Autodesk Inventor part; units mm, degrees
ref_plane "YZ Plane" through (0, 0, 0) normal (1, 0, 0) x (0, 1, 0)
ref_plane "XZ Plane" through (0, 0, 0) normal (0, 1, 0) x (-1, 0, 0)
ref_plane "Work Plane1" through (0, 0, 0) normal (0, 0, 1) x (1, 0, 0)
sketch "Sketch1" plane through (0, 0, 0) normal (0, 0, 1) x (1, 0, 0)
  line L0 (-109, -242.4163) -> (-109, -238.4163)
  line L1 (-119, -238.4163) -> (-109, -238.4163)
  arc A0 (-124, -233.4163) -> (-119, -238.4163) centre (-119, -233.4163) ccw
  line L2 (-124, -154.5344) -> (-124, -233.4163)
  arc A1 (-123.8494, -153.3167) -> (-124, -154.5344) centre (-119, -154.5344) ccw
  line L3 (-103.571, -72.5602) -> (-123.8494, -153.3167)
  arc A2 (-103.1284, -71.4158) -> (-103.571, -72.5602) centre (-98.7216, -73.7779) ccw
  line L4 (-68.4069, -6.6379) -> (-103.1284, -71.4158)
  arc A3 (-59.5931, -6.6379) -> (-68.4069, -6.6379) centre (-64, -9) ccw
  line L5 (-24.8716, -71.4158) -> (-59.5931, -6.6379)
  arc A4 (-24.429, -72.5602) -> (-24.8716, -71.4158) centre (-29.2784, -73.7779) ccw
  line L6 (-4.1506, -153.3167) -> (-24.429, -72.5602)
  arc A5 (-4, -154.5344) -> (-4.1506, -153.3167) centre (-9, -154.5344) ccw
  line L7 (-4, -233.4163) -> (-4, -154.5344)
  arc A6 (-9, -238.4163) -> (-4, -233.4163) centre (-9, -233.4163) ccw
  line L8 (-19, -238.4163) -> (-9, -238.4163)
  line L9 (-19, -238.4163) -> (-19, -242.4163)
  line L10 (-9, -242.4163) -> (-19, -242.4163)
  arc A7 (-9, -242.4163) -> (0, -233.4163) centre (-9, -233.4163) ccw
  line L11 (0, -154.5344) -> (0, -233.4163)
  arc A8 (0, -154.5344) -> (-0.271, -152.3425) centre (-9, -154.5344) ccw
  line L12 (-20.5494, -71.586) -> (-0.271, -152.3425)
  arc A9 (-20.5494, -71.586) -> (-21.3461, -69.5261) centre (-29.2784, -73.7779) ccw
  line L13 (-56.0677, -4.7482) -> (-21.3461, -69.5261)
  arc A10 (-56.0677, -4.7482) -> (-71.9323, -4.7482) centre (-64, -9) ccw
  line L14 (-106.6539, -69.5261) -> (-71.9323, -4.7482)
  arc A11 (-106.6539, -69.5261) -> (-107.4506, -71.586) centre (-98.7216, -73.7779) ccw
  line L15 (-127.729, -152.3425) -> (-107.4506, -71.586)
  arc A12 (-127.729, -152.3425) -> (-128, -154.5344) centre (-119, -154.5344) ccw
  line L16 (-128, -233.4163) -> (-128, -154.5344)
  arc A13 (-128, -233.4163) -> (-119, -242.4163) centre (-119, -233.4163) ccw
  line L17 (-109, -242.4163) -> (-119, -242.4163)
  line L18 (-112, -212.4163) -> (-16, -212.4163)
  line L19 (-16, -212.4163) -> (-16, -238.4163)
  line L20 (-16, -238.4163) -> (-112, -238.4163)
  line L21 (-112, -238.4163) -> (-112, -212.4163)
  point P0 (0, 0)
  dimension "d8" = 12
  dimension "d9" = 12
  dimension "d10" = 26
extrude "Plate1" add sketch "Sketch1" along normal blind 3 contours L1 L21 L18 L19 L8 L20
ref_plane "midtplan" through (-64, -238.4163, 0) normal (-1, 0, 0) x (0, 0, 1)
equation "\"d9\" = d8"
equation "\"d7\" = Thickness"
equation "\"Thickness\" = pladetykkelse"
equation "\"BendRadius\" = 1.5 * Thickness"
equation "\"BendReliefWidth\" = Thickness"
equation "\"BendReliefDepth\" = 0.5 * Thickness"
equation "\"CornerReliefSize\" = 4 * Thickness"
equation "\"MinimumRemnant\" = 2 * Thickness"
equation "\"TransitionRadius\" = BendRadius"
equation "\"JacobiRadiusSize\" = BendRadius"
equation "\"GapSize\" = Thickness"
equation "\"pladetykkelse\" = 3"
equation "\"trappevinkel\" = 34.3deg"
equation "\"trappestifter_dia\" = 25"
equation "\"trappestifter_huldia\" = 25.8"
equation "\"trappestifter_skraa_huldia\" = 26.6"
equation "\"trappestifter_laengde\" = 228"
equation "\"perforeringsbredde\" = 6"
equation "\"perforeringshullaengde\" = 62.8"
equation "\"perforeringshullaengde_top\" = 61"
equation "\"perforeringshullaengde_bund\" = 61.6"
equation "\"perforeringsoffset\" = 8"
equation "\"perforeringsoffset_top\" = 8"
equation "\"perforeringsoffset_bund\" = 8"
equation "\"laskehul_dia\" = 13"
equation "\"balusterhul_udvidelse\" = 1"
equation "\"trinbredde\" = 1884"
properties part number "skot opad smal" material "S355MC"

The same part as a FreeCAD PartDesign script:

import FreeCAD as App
import Part
import Sketcher

V = App.Vector
Q = App.Units.Quantity


def add_polygon(sketch, points):
    """Adds a closed chain of lines whose ends are joined by coincident constraints."""
    first, n = sketch.GeometryCount, len(points)
    for a, b in zip(points, points[1:] + points[:1]):
        sketch.addGeometry(Part.LineSegment(App.Vector(*a, 0), App.Vector(*b, 0)), False)
    for i in range(n):
        sketch.addConstraint(Sketcher.Constraint("Coincident", first + i, 2, first + (i + 1) % n, 1))

doc = App.newDocument("Part")
params = doc.addObject("Spreadsheet::Sheet", "Params")
for row, (alias, value) in enumerate([
    ("sketch1_height", "26 mm"),
    ("sketch1_width", "96 mm"),
    ("pad1_length", "3 mm"),
], start=1):
    params.set(f"A{row}", alias)
    params.set(f"B{row}", "=" + value)
    params.setAlias(f"B{row}", alias)

body = doc.addObject("PartDesign::Body", "Body")

# Sketch on XY plane
sketch1 = doc.addObject("Sketcher::SketchObject", "Sketch")
body.addObject(sketch1)
sketch1.AttachmentSupport = (doc.XY_Plane, [""])
sketch1.MapMode = "FlatFace"
add_polygon(sketch1, [(-112, -238), (-16, -238), (-16, -212), (-112, -212)])  # lines 0-3
sketch1.addConstraint([
    Sketcher.Constraint("Horizontal", 0),
    Sketcher.Constraint("Vertical", 1),
    Sketcher.Constraint("Horizontal", 2),
    Sketcher.Constraint("Vertical", 3),
    Sketcher.Constraint("DistanceY", 1, 1, 1, 2, Q("26 mm")),
    Sketcher.Constraint("DistanceX", 0, 1, 0, 2, Q("96 mm")),
    Sketcher.Constraint("DistanceX", 0, 2, -1, 1, Q("16 mm")),
    Sketcher.Constraint("DistanceY", 0, 2, -1, 1, Q("238.4163 mm")),
])
sketch1.setExpression("Constraints[8]", "Params.sketch1_height")
sketch1.setExpression("Constraints[9]", "Params.sketch1_width")
pad1 = doc.addObject("PartDesign::Pad", "Pad")
body.addObject(pad1)
pad1.Profile = sketch1
pad1.setExpression("Length", "Params.pad1_length")

doc.recompute()
